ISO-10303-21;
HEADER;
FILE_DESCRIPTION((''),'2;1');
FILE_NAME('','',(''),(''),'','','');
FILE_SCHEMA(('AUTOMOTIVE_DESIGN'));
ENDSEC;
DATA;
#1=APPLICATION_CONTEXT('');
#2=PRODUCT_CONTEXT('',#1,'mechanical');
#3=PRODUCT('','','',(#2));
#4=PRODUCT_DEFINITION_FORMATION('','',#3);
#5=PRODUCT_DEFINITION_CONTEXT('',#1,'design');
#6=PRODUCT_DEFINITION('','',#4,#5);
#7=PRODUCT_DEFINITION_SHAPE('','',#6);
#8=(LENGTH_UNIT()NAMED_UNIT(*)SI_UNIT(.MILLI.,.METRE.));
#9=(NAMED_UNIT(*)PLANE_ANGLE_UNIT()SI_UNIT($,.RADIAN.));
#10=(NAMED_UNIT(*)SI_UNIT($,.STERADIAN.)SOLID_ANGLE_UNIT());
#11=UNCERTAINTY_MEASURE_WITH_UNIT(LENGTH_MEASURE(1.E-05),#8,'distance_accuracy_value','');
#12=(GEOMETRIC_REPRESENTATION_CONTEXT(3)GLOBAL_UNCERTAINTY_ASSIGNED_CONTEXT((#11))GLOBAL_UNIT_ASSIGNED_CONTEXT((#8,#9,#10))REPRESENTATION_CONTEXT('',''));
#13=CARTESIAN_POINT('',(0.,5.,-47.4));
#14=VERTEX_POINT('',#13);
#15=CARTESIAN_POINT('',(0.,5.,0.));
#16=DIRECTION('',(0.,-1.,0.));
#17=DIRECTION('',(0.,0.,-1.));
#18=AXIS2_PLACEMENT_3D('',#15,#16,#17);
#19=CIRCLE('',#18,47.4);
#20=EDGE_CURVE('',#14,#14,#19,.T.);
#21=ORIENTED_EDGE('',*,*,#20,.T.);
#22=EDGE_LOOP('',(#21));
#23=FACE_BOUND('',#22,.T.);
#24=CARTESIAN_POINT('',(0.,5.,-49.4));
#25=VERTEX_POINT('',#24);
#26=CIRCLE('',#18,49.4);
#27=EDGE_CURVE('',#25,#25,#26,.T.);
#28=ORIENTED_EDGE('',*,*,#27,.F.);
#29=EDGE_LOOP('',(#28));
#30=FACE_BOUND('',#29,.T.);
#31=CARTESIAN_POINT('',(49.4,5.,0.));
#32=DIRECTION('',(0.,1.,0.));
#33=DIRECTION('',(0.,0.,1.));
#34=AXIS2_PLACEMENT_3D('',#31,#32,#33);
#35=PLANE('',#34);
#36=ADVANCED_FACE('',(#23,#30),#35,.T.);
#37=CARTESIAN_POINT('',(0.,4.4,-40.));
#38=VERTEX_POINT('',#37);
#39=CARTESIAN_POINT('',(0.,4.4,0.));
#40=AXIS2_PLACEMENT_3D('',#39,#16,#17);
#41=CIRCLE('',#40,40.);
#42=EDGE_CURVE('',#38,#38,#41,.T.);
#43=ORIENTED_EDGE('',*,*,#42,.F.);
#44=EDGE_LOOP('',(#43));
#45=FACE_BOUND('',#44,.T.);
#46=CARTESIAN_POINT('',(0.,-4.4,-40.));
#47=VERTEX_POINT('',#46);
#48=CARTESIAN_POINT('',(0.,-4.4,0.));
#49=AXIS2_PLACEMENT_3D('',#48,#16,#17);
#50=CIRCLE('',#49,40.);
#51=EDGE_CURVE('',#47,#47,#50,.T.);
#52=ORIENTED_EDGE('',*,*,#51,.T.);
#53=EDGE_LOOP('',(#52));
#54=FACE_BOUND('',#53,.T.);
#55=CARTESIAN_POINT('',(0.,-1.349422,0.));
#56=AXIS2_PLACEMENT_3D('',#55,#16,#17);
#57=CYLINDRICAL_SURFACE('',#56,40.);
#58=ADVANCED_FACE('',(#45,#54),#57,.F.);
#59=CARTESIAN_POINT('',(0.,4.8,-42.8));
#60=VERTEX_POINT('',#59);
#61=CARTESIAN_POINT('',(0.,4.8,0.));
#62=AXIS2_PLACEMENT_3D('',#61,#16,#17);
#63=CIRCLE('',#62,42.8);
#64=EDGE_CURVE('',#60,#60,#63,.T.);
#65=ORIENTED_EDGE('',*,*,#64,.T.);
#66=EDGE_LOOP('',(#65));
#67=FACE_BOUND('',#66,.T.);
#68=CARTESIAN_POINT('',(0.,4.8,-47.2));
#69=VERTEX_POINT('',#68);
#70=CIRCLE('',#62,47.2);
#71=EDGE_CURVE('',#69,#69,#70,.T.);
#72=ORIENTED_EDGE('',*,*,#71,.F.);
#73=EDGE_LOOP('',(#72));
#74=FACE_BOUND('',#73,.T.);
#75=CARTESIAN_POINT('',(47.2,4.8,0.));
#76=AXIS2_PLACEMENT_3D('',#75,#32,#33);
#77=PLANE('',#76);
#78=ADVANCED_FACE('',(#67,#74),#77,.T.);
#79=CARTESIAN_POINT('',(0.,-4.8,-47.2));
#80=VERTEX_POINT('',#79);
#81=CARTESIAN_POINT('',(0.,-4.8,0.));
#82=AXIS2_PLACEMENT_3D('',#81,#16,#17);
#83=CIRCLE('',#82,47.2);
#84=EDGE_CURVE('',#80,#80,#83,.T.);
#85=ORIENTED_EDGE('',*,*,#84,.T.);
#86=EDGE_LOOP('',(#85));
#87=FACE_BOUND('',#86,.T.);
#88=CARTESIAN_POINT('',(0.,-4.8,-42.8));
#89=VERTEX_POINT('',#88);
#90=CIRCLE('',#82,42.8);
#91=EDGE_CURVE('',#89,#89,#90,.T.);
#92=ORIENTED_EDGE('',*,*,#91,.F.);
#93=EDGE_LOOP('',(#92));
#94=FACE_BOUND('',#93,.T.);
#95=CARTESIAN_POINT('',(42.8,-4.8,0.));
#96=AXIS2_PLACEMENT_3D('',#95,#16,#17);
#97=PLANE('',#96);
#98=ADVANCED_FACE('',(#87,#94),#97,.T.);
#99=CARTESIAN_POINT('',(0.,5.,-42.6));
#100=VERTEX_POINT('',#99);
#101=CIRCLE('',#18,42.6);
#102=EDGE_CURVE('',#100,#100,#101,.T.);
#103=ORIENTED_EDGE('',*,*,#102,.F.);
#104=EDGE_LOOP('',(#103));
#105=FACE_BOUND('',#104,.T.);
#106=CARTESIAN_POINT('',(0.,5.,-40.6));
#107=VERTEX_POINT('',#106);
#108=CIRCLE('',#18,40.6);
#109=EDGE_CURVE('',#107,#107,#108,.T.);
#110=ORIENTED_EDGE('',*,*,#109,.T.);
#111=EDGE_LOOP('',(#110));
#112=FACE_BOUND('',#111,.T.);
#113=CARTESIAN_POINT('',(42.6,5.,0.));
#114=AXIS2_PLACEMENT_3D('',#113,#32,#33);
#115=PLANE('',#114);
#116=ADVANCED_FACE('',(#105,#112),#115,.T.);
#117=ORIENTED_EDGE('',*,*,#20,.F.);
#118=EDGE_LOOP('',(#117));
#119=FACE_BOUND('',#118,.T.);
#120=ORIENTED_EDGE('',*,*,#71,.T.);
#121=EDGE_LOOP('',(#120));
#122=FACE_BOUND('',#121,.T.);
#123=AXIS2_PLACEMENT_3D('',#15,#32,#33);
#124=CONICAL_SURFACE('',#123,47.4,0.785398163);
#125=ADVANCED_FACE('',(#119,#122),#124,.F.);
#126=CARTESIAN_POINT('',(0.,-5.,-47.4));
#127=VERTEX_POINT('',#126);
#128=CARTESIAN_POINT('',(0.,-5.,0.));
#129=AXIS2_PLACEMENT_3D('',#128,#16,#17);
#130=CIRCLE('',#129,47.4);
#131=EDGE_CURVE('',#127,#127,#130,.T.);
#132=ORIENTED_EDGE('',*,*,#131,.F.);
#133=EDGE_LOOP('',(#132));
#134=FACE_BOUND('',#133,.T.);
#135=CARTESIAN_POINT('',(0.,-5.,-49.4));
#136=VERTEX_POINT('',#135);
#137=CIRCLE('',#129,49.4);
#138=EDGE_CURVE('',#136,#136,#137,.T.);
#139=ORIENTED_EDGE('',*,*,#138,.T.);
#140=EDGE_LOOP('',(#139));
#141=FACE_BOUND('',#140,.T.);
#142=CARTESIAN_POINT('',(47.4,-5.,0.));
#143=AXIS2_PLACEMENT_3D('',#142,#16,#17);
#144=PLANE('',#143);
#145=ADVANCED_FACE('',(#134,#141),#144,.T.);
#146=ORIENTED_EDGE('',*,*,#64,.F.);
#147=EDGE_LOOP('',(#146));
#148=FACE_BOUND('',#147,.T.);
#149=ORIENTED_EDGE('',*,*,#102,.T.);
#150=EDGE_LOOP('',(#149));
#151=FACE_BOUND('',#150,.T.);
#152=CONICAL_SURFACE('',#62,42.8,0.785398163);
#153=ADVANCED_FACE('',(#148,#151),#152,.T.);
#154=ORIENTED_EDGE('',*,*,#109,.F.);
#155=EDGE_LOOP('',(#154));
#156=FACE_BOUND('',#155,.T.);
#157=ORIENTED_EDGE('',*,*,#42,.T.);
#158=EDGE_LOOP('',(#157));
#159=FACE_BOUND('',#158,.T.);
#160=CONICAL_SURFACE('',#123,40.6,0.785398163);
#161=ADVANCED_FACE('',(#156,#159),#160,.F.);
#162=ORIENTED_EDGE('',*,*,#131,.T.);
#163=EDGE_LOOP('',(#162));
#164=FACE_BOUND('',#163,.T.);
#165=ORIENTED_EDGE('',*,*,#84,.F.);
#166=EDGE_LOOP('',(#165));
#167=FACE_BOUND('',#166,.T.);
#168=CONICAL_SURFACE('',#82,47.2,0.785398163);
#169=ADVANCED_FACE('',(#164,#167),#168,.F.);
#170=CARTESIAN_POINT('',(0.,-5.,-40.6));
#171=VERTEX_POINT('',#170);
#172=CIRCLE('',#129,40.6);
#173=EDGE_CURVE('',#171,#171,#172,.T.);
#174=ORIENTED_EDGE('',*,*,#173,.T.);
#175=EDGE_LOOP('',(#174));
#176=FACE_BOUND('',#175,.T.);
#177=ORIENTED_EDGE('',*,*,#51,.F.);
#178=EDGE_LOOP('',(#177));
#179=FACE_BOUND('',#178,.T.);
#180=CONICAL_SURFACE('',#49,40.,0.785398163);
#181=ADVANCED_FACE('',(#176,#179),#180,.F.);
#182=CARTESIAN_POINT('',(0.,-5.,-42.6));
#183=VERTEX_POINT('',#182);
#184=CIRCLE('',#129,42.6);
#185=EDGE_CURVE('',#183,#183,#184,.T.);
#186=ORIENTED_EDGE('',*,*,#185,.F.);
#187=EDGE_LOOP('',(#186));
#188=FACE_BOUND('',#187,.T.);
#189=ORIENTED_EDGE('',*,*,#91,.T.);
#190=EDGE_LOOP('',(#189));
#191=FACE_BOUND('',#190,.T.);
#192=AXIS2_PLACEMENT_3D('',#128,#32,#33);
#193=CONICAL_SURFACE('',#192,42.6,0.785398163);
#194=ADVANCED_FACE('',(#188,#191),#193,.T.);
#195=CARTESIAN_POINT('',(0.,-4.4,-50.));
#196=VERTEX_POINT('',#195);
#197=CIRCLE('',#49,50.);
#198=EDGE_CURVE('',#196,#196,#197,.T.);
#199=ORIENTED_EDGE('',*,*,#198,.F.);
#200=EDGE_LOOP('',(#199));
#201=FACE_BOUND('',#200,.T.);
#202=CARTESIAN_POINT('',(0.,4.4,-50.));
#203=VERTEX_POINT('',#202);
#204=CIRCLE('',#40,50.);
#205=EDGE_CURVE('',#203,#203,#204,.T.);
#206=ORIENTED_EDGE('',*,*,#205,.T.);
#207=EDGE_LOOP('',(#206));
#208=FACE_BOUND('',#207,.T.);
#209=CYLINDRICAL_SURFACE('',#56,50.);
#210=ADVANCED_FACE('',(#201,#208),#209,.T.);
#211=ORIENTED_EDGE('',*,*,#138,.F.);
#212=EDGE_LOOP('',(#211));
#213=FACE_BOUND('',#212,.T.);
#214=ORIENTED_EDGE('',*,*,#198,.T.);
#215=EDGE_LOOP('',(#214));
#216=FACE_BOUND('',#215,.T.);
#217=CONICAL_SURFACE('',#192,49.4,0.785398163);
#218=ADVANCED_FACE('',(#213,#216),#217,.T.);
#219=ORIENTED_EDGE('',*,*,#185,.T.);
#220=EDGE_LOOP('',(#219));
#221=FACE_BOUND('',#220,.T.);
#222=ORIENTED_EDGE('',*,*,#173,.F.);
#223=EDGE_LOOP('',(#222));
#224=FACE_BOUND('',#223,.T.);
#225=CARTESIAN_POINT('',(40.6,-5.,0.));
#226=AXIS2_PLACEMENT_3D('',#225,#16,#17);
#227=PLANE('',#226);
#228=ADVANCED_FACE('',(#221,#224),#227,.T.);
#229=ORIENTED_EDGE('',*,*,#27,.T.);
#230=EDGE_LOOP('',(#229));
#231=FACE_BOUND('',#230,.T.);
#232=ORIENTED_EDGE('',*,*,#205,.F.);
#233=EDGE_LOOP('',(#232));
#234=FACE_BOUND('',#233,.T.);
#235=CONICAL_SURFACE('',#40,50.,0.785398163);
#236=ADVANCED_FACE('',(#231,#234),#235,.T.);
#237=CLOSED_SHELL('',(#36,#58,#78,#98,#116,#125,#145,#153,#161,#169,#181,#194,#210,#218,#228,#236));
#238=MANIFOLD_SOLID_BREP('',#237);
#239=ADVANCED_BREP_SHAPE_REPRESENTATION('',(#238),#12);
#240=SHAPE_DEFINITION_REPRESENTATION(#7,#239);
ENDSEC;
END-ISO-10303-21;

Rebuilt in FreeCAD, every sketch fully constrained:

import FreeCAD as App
import Part
import Sketcher
from FreeCAD import Vector
Q = App.Units.Quantity


def add_polygon(sketch, points):
    """Adds a closed chain of lines whose ends are joined by coincident constraints."""
    first, n = sketch.GeometryCount, len(points)
    for a, b in zip(points, points[1:] + points[:1]):
        sketch.addGeometry(Part.LineSegment(App.Vector(*a, 0), App.Vector(*b, 0)), False)
    for i in range(n):
        sketch.addConstraint(Sketcher.Constraint("Coincident", first + i, 2, first + (i + 1) % n, 1))

doc = App.newDocument("Part")
params = doc.addObject("Spreadsheet::Sheet", "Params")
for row, (alias, value) in enumerate([
    ("sketch1_width", "2 mm"),
    ("sketch1_width2", "4.4 mm"),
    ("sketch1_height", "8.8 mm"),
    ("revolution_angle", "360 deg"),
], start=1):
    params.set(f"A{row}", alias)
    params.set(f"B{row}", "=" + value)
    params.setAlias(f"B{row}", alias)

body = doc.addObject("PartDesign::Body", "Body")

sketch1 = doc.addObject("Sketcher::SketchObject", "Sketch")
body.addObject(sketch1)
sketch1.AttachmentSupport = (doc.XY_Plane, [""])
sketch1.MapMode = "FlatFace"
add_polygon(sketch1, [(40, 4.4), (40, -4.4), (40.6, -5), (42.6, -5), (42.8, -4.8), (47.2, -4.8), (47.4, -5), (49.4, -5), (50, -4.4), (50, 4.4), (49.4, 5), (47.4, 5), (47.2, 4.8), (42.8, 4.8), (42.6, 5), (40.6, 5)])
sketch1.addConstraint(Sketcher.Constraint("Vertical", 0))
sketch1.addConstraint(Sketcher.Constraint("Horizontal", 2))
sketch1.addConstraint(Sketcher.Constraint("Horizontal", 4))
sketch1.addConstraint(Sketcher.Constraint("Horizontal", 6))
sketch1.addConstraint(Sketcher.Constraint("Vertical", 8))
sketch1.addConstraint(Sketcher.Constraint("Horizontal", 10))
sketch1.addConstraint(Sketcher.Constraint("Horizontal", 12))
sketch1.addConstraint(Sketcher.Constraint("Horizontal", 14))
sketch1.addConstraint(Sketcher.Constraint("Symmetric", 6, 2, 9, 2, -1))
sketch1.addConstraint(Sketcher.Constraint("Symmetric", 4, 2, 11, 2, -1))
sketch1.addConstraint(Sketcher.Constraint("Symmetric", 2, 2, 13, 2, -1))
sketch1.addConstraint(Sketcher.Constraint("Perpendicular", 1, 3))
sketch1.addConstraint(Sketcher.Constraint("Perpendicular", 3, 5))
sketch1.addConstraint(Sketcher.Constraint("Perpendicular", 5, 7))
sketch1.addConstraint(Sketcher.Constraint("Perpendicular", 7, 9))
sketch1.addConstraint(Sketcher.Constraint("Perpendicular", 9, 11))
sketch1.addConstraint(Sketcher.Constraint("Perpendicular", 11, 13))
sketch1.addConstraint(Sketcher.Constraint("Perpendicular", 13, 15))
sketch1.addConstraint(Sketcher.Constraint("Horizontal", 2, 2, 5, 2))
sketch1.addConstraint(Sketcher.Constraint("Horizontal", 0, 2, 7, 2))
sketch1.addConstraint(Sketcher.Constraint("Horizontal", 8, 2, 15, 2))
sketch1.addConstraint(Sketcher.Constraint("Vertical", 5, 2, 10, 2))
sketch1.addConstraint(Sketcher.Constraint("Equal", 2, 6))
sketch1.addConstraint(Sketcher.Constraint("DistanceX", 2, 1, 2, 2, Q("2 mm")))
sketch1.addConstraint(Sketcher.Constraint("DistanceX", 4, 1, 4, 2, Q("4.4 mm")))
sketch1.addConstraint(Sketcher.Constraint("DistanceY", 0, 2, 0, 1, Q("8.8 mm")))
sketch1.addConstraint(Sketcher.Constraint("DistanceX", -1, 1, 0, 2, Q("40 mm")))
sketch1.addConstraint(Sketcher.Constraint("DistanceY", 1, 2, -1, 1, Q("5 mm")))
sketch1.addConstraint(Sketcher.Constraint("DistanceX", -1, 1, 7, 2, Q("50 mm")))
sketch1.setExpression("Constraints[39]", "Params.sketch1_width")
sketch1.setExpression("Constraints[40]", "Params.sketch1_width2")
sketch1.setExpression("Constraints[41]", "Params.sketch1_height")
revolution = doc.addObject("PartDesign::Revolution", "Revolution")
body.addObject(revolution)
revolution.Profile = sketch1
revolution.ReferenceAxis = (sketch1, ["V_Axis"])
revolution.setExpression("Angle", "Params.revolution_angle")

doc.recompute()
